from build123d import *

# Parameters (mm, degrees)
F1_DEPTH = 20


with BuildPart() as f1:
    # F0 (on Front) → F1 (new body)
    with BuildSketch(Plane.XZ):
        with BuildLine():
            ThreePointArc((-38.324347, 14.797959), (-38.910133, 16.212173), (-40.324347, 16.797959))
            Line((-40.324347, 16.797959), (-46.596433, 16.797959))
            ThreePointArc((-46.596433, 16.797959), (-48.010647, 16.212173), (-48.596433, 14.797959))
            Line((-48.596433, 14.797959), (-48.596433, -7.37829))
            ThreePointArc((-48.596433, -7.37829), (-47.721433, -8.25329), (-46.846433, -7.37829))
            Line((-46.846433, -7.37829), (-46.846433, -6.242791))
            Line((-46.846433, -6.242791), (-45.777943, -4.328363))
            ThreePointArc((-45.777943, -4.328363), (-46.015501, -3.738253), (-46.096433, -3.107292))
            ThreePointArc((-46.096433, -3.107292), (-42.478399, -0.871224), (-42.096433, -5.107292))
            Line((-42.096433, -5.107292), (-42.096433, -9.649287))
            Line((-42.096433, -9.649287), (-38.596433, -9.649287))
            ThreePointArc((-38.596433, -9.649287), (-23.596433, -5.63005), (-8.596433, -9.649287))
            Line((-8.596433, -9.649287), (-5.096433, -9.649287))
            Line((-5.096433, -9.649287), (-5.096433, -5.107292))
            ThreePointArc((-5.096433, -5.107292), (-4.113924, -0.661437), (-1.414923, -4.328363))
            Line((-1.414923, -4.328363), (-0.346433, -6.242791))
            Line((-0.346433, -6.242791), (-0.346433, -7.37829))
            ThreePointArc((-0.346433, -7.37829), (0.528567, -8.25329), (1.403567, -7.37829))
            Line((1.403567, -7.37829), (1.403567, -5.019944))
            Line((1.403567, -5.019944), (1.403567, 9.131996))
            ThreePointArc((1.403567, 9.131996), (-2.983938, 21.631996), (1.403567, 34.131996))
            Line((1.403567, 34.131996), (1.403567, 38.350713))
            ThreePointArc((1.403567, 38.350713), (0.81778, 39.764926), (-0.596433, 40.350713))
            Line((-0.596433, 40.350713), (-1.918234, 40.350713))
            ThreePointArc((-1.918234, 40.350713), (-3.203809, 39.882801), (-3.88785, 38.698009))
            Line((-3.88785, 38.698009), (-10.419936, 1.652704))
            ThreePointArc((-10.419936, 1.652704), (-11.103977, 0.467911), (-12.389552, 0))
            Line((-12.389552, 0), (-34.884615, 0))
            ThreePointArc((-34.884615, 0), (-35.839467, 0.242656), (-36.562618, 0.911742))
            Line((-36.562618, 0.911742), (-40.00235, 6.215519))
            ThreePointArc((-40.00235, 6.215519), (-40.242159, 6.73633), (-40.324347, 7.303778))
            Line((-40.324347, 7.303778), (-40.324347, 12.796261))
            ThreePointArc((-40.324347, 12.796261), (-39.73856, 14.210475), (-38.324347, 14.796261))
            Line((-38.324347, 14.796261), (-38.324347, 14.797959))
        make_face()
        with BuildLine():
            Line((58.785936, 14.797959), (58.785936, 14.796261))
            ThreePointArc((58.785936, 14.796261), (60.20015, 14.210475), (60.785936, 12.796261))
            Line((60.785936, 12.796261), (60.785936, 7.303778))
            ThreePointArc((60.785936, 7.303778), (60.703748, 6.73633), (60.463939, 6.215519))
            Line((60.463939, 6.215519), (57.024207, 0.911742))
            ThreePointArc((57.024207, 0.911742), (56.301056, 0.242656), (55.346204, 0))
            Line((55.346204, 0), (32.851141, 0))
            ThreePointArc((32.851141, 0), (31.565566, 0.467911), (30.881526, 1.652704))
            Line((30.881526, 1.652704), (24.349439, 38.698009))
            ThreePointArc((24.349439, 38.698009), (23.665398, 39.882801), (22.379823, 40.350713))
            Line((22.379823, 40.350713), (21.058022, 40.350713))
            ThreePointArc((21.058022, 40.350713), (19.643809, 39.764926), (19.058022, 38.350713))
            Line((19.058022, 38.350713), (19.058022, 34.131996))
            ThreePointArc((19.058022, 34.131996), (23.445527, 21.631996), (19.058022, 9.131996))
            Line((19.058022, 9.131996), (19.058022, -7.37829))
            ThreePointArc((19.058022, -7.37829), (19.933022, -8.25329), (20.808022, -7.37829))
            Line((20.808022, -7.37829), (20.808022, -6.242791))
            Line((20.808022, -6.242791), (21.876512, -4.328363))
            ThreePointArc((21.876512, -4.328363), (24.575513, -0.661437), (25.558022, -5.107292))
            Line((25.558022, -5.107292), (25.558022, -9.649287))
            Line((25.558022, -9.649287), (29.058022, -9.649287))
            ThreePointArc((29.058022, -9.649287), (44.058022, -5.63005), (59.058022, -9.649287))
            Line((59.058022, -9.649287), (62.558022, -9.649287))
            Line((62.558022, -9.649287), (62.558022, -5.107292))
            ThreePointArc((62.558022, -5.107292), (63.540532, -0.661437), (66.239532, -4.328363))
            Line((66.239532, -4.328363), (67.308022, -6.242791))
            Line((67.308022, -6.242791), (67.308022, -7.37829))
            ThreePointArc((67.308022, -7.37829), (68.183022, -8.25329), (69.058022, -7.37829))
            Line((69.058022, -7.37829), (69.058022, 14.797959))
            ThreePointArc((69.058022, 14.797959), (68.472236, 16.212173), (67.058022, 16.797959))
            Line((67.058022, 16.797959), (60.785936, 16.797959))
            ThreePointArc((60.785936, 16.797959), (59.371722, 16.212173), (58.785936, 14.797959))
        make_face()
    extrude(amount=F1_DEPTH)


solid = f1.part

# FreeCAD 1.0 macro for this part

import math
import FreeCAD as App
import Part
import Sketcher
from FreeCAD import Vector
Q = App.Units.Quantity

doc = App.newDocument("Part")
params = doc.addObject("Spreadsheet::Sheet", "Params")
for row, (alias, value) in enumerate([
    ("sketch1_radius", "1.999999 mm"),
    ("sketch1_radius2", "20 mm"),
    ("sketch1_radius3", "2.5 mm"),
    ("sketch1_width", "3.5 mm"),
    ("pad1_length", "20 mm"),
], start=1):
    params.set(f"A{row}", alias)
    params.set(f"B{row}", "=" + value)
    params.setAlias(f"B{row}", alias)

body = doc.addObject("PartDesign::Body", "Body")
body.AllowCompound = True

# Sketch on XZ plane
sketch1 = body.newObject("Sketcher::SketchObject", "Sketch")
sketch1.AttachmentSupport = (doc.getObject("XZ_Plane"), [""])
sketch1.MapMode = "FlatFace"
sketch1.addGeometry(Part.ArcOfCircle(Part.Circle(Vector(-40.3243, 14.798, 0), Vector(0, 0, 1), 2), math.radians(0), math.radians(90)), False)
sketch1.addGeometry(Part.LineSegment(Vector(-40.3243, 16.798, 0), Vector(-46.5964, 16.798, 0)), False)
sketch1.addGeometry(Part.ArcOfCircle(Part.Circle(Vector(-46.5964, 14.798, 0), Vector(0, 0, 1), 2), math.radians(90), math.radians(180)), False)
sketch1.addGeometry(Part.LineSegment(Vector(-48.5964, 14.798, 0), Vector(-48.5964, -7.3783, 0)), False)
sketch1.addGeometry(Part.ArcOfCircle(Part.Circle(Vector(-47.7214, -7.3783, 0), Vector(0, 0, 1), 0.875), math.radians(180), math.radians(360)), False)
sketch1.addGeometry(Part.LineSegment(Vector(-46.8464, -7.3783, 0), Vector(-46.8464, -6.2428, 0)), False)
sketch1.addGeometry(Part.LineSegment(Vector(-46.8464, -6.2428, 0), Vector(-45.7779, -4.3284, 0)), False)
sketch1.addGeometry(Part.ArcOfCircle(Part.Circle(Vector(-43.5964, -3.1073, 0), Vector(0, 0, 1), 2.5), math.radians(180), math.radians(209)), False)
sketch1.addGeometry(Part.ArcOfCircle(Part.Circle(Vector(-43.5964, -3.1073, 0), Vector(0, 0, 1), 2.5), math.radians(-53), math.radians(180)), False)
sketch1.addGeometry(Part.LineSegment(Vector(-42.0964, -5.1073, 0), Vector(-42.0964, -9.6493, 0)), False)
sketch1.addGeometry(Part.LineSegment(Vector(-42.0964, -9.6493, 0), Vector(-38.5964, -9.6493, 0)), False)
sketch1.addGeometry(Part.ArcOfCircle(Part.Circle(Vector(-23.5964, -35.6301, 0), Vector(0, 0, 1), 30), math.radians(60), math.radians(120)), False)
sketch1.addGeometry(Part.LineSegment(Vector(-8.5964, -9.6493, 0), Vector(-5.0964, -9.6493, 0)), False)
sketch1.addGeometry(Part.LineSegment(Vector(-5.0964, -9.6493, 0), Vector(-5.0964, -5.1073, 0)), False)
sketch1.addGeometry(Part.ArcOfCircle(Part.Circle(Vector(-3.5964, -3.1073, 0), Vector(0, 0, 1), 2.5), math.radians(-29), math.radians(233)), False)
sketch1.addGeometry(Part.LineSegment(Vector(-1.4149, -4.3284, 0), Vector(-0.3464, -6.2428, 0)), False)
sketch1.addGeometry(Part.LineSegment(Vector(-0.3464, -6.2428, 0), Vector(-0.3464, -7.3783, 0)), False)
sketch1.addGeometry(Part.ArcOfCircle(Part.Circle(Vector(0.5286, -7.3783, 0), Vector(0, 0, 1), 0.875), math.radians(180), math.radians(360)), False)
sketch1.addGeometry(Part.LineSegment(Vector(1.4036, -7.3783, 0), Vector(1.4036, 9.132, 0)), False)
sketch1.addGeometry(Part.ArcOfCircle(Part.Circle(Vector(17.0161, 21.632, 0), Vector(0, 0, 1), 20), math.radians(141), math.radians(219)), False)
sketch1.addGeometry(Part.LineSegment(Vector(1.4036, 34.132, 0), Vector(1.4036, 38.3507, 0)), False)
sketch1.addGeometry(Part.ArcOfCircle(Part.Circle(Vector(-0.5964, 38.3507, 0), Vector(0, 0, 1), 2), math.radians(0), math.radians(90)), False)
sketch1.addGeometry(Part.LineSegment(Vector(-0.5964, 40.3507, 0), Vector(-1.9182, 40.3507, 0)), False)
sketch1.addGeometry(Part.ArcOfCircle(Part.Circle(Vector(-1.9182, 38.3507, 0), Vector(0, 0, 1), 2), math.radians(90), math.radians(170)), False)
sketch1.addGeometry(Part.LineSegment(Vector(-3.8878, 38.698, 0), Vector(-10.4199, 1.6527, 0)), False)
sketch1.addGeometry(Part.ArcOfCircle(Part.Circle(Vector(-12.3896, 2, 0), Vector(0, 0, 1), 2), math.radians(-90), math.radians(-10)), False)
sketch1.addGeometry(Part.LineSegment(Vector(-12.3896, 0, 0), Vector(-34.8846, 0, 0)), False)
sketch1.addGeometry(Part.ArcOfCircle(Part.Circle(Vector(-34.8846, 2, 0), Vector(0, 0, 1), 2), math.radians(-147), math.radians(-90)), False)
sketch1.addGeometry(Part.LineSegment(Vector(-36.5626, 0.9117, 0), Vector(-40.0023, 6.2155, 0)), False)
sketch1.addGeometry(Part.ArcOfCircle(Part.Circle(Vector(-38.3243, 7.3038, 0), Vector(0, 0, 1), 2), math.radians(-180), math.radians(-147)), False)
sketch1.addGeometry(Part.LineSegment(Vector(-40.3243, 7.3038, 0), Vector(-40.3243, 12.7963, 0)), False)
sketch1.addGeometry(Part.ArcOfCircle(Part.Circle(Vector(-38.3243, 12.7963, 0), Vector(0, 0, 1), 2), math.radians(90), math.radians(180)), False)
sketch1.addGeometry(Part.LineSegment(Vector(-38.3243, 14.7963, 0), Vector(-38.3243, 14.798, 0)), False)
sketch1.addGeometry(Part.LineSegment(Vector(58.7859, 14.798, 0), Vector(58.7859, 14.7963, 0)), False)
sketch1.addGeometry(Part.ArcOfCircle(Part.Circle(Vector(58.7859, 12.7963, 0), Vector(0, 0, 1), 2), math.radians(0), math.radians(90)), False)
sketch1.addGeometry(Part.LineSegment(Vector(60.7859, 12.7963, 0), Vector(60.7859, 7.3038, 0)), False)
sketch1.addGeometry(Part.ArcOfCircle(Part.Circle(Vector(58.7859, 7.3038, 0), Vector(0, 0, 1), 2), math.radians(-33), math.radians(0)), False)
sketch1.addGeometry(Part.LineSegment(Vector(60.4639, 6.2155, 0), Vector(57.0242, 0.9117, 0)), False)
sketch1.addGeometry(Part.ArcOfCircle(Part.Circle(Vector(55.3462, 2, 0), Vector(0, 0, 1), 2), math.radians(-90), math.radians(-33)), False)
sketch1.addGeometry(Part.LineSegment(Vector(55.3462, 0, 0), Vector(32.8511, 0, 0)), False)
sketch1.addGeometry(Part.ArcOfCircle(Part.Circle(Vector(32.8511, 2, 0), Vector(0, 0, 1), 2), math.radians(-170), math.radians(-90)), False)
sketch1.addGeometry(Part.LineSegment(Vector(30.8815, 1.6527, 0), Vector(24.3494, 38.698, 0)), False)
sketch1.addGeometry(Part.ArcOfCircle(Part.Circle(Vector(22.3798, 38.3507, 0), Vector(0, 0, 1), 2), math.radians(10), math.radians(90)), False)
sketch1.addGeometry(Part.LineSegment(Vector(22.3798, 40.3507, 0), Vector(21.058, 40.3507, 0)), False)
sketch1.addGeometry(Part.ArcOfCircle(Part.Circle(Vector(21.058, 38.3507, 0), Vector(0, 0, 1), 2), math.radians(90), math.radians(180)), False)
sketch1.addGeometry(Part.LineSegment(Vector(19.058, 38.3507, 0), Vector(19.058, 34.132, 0)), False)
sketch1.addGeometry(Part.ArcOfCircle(Part.Circle(Vector(3.4455, 21.632, 0), Vector(0, 0, 1), 20), math.radians(-39), math.radians(39)), False)
sketch1.addGeometry(Part.LineSegment(Vector(19.058, 9.132, 0), Vector(19.058, -7.3783, 0)), False)
sketch1.addGeometry(Part.ArcOfCircle(Part.Circle(Vector(19.933, -7.3783, 0), Vector(0, 0, 1), 0.875), math.radians(180), math.radians(360)), False)
sketch1.addGeometry(Part.LineSegment(Vector(20.808, -7.3783, 0), Vector(20.808, -6.2428, 0)), False)
sketch1.addGeometry(Part.LineSegment(Vector(20.808, -6.2428, 0), Vector(21.8765, -4.3284, 0)), False)
sketch1.addGeometry(Part.ArcOfCircle(Part.Circle(Vector(24.058, -3.1073, 0), Vector(0, 0, 1), 2.5), math.radians(-53), math.radians(209)), False)
sketch1.addGeometry(Part.LineSegment(Vector(25.558, -5.1073, 0), Vector(25.558, -9.6493, 0)), False)
sketch1.addGeometry(Part.LineSegment(Vector(25.558, -9.6493, 0), Vector(29.058, -9.6493, 0)), False)
sketch1.addGeometry(Part.ArcOfCircle(Part.Circle(Vector(44.058, -35.6301, 0), Vector(0, 0, 1), 30), math.radians(60), math.radians(120)), False)
sketch1.addGeometry(Part.LineSegment(Vector(59.058, -9.6493, 0), Vector(62.558, -9.6493, 0)), False)
sketch1.addGeometry(Part.LineSegment(Vector(62.558, -9.6493, 0), Vector(62.558, -5.1073, 0)), False)
sketch1.addGeometry(Part.ArcOfCircle(Part.Circle(Vector(64.058, -3.1073, 0), Vector(0, 0, 1), 2.5), math.radians(-29), math.radians(233)), False)
sketch1.addGeometry(Part.LineSegment(Vector(66.2395, -4.3284, 0), Vector(67.308, -6.2428, 0)), False)
sketch1.addGeometry(Part.LineSegment(Vector(67.308, -6.2428, 0), Vector(67.308, -7.3783, 0)), False)
sketch1.addGeometry(Part.ArcOfCircle(Part.Circle(Vector(68.183, -7.3783, 0), Vector(0, 0, 1), 0.875), math.radians(180), math.radians(360)), False)
sketch1.addGeometry(Part.LineSegment(Vector(69.058, -7.3783, 0), Vector(69.058, 14.798, 0)), False)
sketch1.addGeometry(Part.ArcOfCircle(Part.Circle(Vector(67.058, 14.798, 0), Vector(0, 0, 1), 2), math.radians(0), math.radians(90)), False)
sketch1.addGeometry(Part.LineSegment(Vector(67.058, 16.798, 0), Vector(60.7859, 16.798, 0)), False)
sketch1.addGeometry(Part.ArcOfCircle(Part.Circle(Vector(60.7859, 14.798, 0), Vector(0, 0, 1), 2), math.radians(90), math.radians(180)), False)
sketch1.addConstraint(Sketcher.Constraint("Tangent", 0, 2, 1, 1))
sketch1.addConstraint(Sketcher.Constraint("Tangent", 1, 2, 2, 1))
sketch1.addConstraint(Sketcher.Constraint("Tangent", 2, 2, 3, 1))
sketch1.addConstraint(Sketcher.Constraint("Tangent", 3, 2, 4, 1))
sketch1.addConstraint(Sketcher.Constraint("Tangent", 4, 2, 5, 1))
sketch1.addConstraint(Sketcher.Constraint("Coincident", 5, 2, 6, 1))
sketch1.addConstraint(Sketcher.Constraint("Coincident", 6, 2, 7, 2))
sketch1.addConstraint(Sketcher.Constraint("Tangent", 7, 1, 8, 2))
sketch1.addConstraint(Sketcher.Constraint("Coincident", 8, 1, 9, 1))
sketch1.addConstraint(Sketcher.Constraint("Coincident", 9, 2, 10, 1))
sketch1.addConstraint(Sketcher.Constraint("Coincident", 10, 2, 11, 2))
sketch1.addConstraint(Sketcher.Constraint("Coincident", 11, 1, 12, 1))
sketch1.addConstraint(Sketcher.Constraint("Coincident", 12, 2, 13, 1))
sketch1.addConstraint(Sketcher.Constraint("Coincident", 13, 2, 14, 2))
sketch1.addConstraint(Sketcher.Constraint("Coincident", 14, 1, 15, 1))
sketch1.addConstraint(Sketcher.Constraint("Coincident", 15, 2, 16, 1))
sketch1.addConstraint(Sketcher.Constraint("Tangent", 16, 2, 17, 1))
sketch1.addConstraint(Sketcher.Constraint("Tangent", 17, 2, 18, 1))
sketch1.addConstraint(Sketcher.Constraint("Coincident", 18, 2, 19, 2))
sketch1.addConstraint(Sketcher.Constraint("Coincident", 19, 1, 20, 1))
sketch1.addConstraint(Sketcher.Constraint("Tangent", 20, 2, 21, 1))
sketch1.addConstraint(Sketcher.Constraint("Tangent", 21, 2, 22, 1))
sketch1.addConstraint(Sketcher.Constraint("Tangent", 22, 2, 23, 1))
sketch1.addConstraint(Sketcher.Constraint("Tangent", 23, 2, 24, 1))
sketch1.addConstraint(Sketcher.Constraint("Tangent", 24, 2, 25, 2))
sketch1.addConstraint(Sketcher.Constraint("Tangent", 25, 1, 26, 1))
sketch1.addConstraint(Sketcher.Constraint("Tangent", 26, 2, 27, 2))
sketch1.addConstraint(Sketcher.Constraint("Tangent", 27, 1, 28, 1))
sketch1.addConstraint(Sketcher.Constraint("Tangent", 28, 2, 29, 2))
sketch1.addConstraint(Sketcher.Constraint("Tangent", 29, 1, 30, 1))
sketch1.addConstraint(Sketcher.Constraint("Tangent", 30, 2, 31, 2))
sketch1.addConstraint(Sketcher.Constraint("Coincident", 31, 1, 32, 1))
sketch1.addConstraint(Sketcher.Constraint("Tangent", 32, 2, 0, 1))
sketch1.addConstraint(Sketcher.Constraint("Coincident", 33, 2, 34, 2))
sketch1.addConstraint(Sketcher.Constraint("Tangent", 34, 1, 35, 1))
sketch1.addConstraint(Sketcher.Constraint("Tangent", 35, 2, 36, 2))
sketch1.addConstraint(Sketcher.Constraint("Tangent", 36, 1, 37, 1))
sketch1.addConstraint(Sketcher.Constraint("Tangent", 37, 2, 38, 2))
sketch1.addConstraint(Sketcher.Constraint("Tangent", 38, 1, 39, 1))
sketch1.addConstraint(Sketcher.Constraint("Tangent", 39, 2, 40, 2))
sketch1.addConstraint(Sketcher.Constraint("Tangent", 40, 1, 41, 1))
sketch1.addConstraint(Sketcher.Constraint("Tangent", 41, 2, 42, 1))
sketch1.addConstraint(Sketcher.Constraint("Tangent", 42, 2, 43, 1))
sketch1.addConstraint(Sketcher.Constraint("Tangent", 43, 2, 44, 1))
sketch1.addConstraint(Sketcher.Constraint("Tangent", 44, 2, 45, 1))
sketch1.addConstraint(Sketcher.Constraint("Coincident", 45, 2, 46, 2))
sketch1.addConstraint(Sketcher.Constraint("Coincident", 46, 1, 47, 1))
sketch1.addConstraint(Sketcher.Constraint("Tangent", 47, 2, 48, 1))
sketch1.addConstraint(Sketcher.Constraint("Tangent", 48, 2, 49, 1))
sketch1.addConstraint(Sketcher.Constraint("Coincident", 49, 2, 50, 1))
sketch1.addConstraint(Sketcher.Constraint("Coincident", 50, 2, 51, 2))
sketch1.addConstraint(Sketcher.Constraint("Coincident", 51, 1, 52, 1))
sketch1.addConstraint(Sketcher.Constraint("Coincident", 52, 2, 53, 1))
sketch1.addConstraint(Sketcher.Constraint("Coincident", 53, 2, 54, 2))
sketch1.addConstraint(Sketcher.Constraint("Coincident", 54, 1, 55, 1))
sketch1.addConstraint(Sketcher.Constraint("Coincident", 55, 2, 56, 1))
sketch1.addConstraint(Sketcher.Constraint("Coincident", 56, 2, 57, 2))
sketch1.addConstraint(Sketcher.Constraint("Coincident", 57, 1, 58, 1))
sketch1.addConstraint(Sketcher.Constraint("Coincident", 58, 2, 59, 1))
sketch1.addConstraint(Sketcher.Constraint("Tangent", 59, 2, 60, 1))
sketch1.addConstraint(Sketcher.Constraint("Tangent", 60, 2, 61, 1))
sketch1.addConstraint(Sketcher.Constraint("Tangent", 61, 2, 62, 1))
sketch1.addConstraint(Sketcher.Constraint("Tangent", 62, 2, 63, 1))
sketch1.addConstraint(Sketcher.Constraint("Tangent", 63, 2, 64, 1))
sketch1.addConstraint(Sketcher.Constraint("Tangent", 64, 2, 33, 1))
sketch1.addConstraint(Sketcher.Constraint("Horizontal", 1))
sketch1.addConstraint(Sketcher.Constraint("Vertical", 3))
sketch1.addConstraint(Sketcher.Constraint("Vertical", 5))
sketch1.addConstraint(Sketcher.Constraint("Vertical", 9))
sketch1.addConstraint(Sketcher.Constraint("Horizontal", 10))
sketch1.addConstraint(Sketcher.Constraint("Horizontal", 12))
sketch1.addConstraint(Sketcher.Constraint("Vertical", 13))
sketch1.addConstraint(Sketcher.Constraint("Vertical", 16))
sketch1.addConstraint(Sketcher.Constraint("Vertical", 18))
sketch1.addConstraint(Sketcher.Constraint("Vertical", 20))
sketch1.addConstraint(Sketcher.Constraint("Horizontal", 22))
sketch1.addConstraint(Sketcher.Constraint("Horizontal", 26))
sketch1.addConstraint(Sketcher.Constraint("Vertical", 30))
sketch1.addConstraint(Sketcher.Constraint("Vertical", 35))
sketch1.addConstraint(Sketcher.Constraint("Horizontal", 39))
sketch1.addConstraint(Sketcher.Constraint("Horizontal", 43))
sketch1.addConstraint(Sketcher.Constraint("Vertical", 45))
sketch1.addConstraint(Sketcher.Constraint("Vertical", 47))
sketch1.addConstraint(Sketcher.Constraint("Vertical", 49))
sketch1.addConstraint(Sketcher.Constraint("Vertical", 52))
sketch1.addConstraint(Sketcher.Constraint("Horizontal", 53))
sketch1.addConstraint(Sketcher.Constraint("Horizontal", 55))
sketch1.addConstraint(Sketcher.Constraint("Vertical", 56))
sketch1.addConstraint(Sketcher.Constraint("Vertical", 59))
sketch1.addConstraint(Sketcher.Constraint("Vertical", 61))
sketch1.addConstraint(Sketcher.Constraint("Horizontal", 63))
sketch1.addConstraint(Sketcher.Constraint("Equal", 0, 2))
sketch1.addConstraint(Sketcher.Constraint("Equal", 8, 14))
sketch1.addConstraint(Sketcher.Constraint("Equal", 4, 17))
sketch1.addConstraint(Sketcher.Constraint("Equal", 21, 23))
sketch1.addConstraint(Sketcher.Constraint("Equal", 21, 25))
sketch1.addConstraint(Sketcher.Constraint("Equal", 2, 27))
sketch1.addConstraint(Sketcher.Constraint("Equal", 23, 29))
sketch1.addConstraint(Sketcher.Constraint("Equal", 27, 31))
sketch1.addConstraint(Sketcher.Constraint("Equal", 31, 34))
sketch1.addConstraint(Sketcher.Constraint("Equal", 29, 36))
sketch1.addConstraint(Sketcher.Constraint("Equal", 34, 38))
sketch1.addConstraint(Sketcher.Constraint("Equal", 38, 40))
sketch1.addConstraint(Sketcher.Constraint("Equal", 36, 42))
sketch1.addConstraint(Sketcher.Constraint("Equal", 42, 44))
sketch1.addConstraint(Sketcher.Constraint("Equal", 19, 46))
sketch1.addConstraint(Sketcher.Constraint("Equal", 17, 48))
sketch1.addConstraint(Sketcher.Constraint("Equal", 14, 51))
sketch1.addConstraint(Sketcher.Constraint("Equal", 11, 54))
sketch1.addConstraint(Sketcher.Constraint("Equal", 51, 57))
sketch1.addConstraint(Sketcher.Constraint("Equal", 48, 60))
sketch1.addConstraint(Sketcher.Constraint("Equal", 40, 62))
sketch1.addConstraint(Sketcher.Constraint("Equal", 62, 64))
sketch1.addConstraint(Sketcher.Constraint("PointOnObject", 25, 1, -1))
sketch1.addConstraint(Sketcher.Constraint("PointOnObject", 38, 1, -1))
sketch1.addConstraint(Sketcher.Constraint("Parallel", 6, 50))
sketch1.addConstraint(Sketcher.Constraint("Parallel", 15, 58))
sketch1.addConstraint(Sketcher.Constraint("Horizontal", 8, 3, 14, 3))
sketch1.addConstraint(Sketcher.Constraint("Horizontal", 4, 3, 17, 3))
sketch1.addConstraint(Sketcher.Constraint("Horizontal", 31, 3, 34, 3))
sketch1.addConstraint(Sketcher.Constraint("Horizontal", 29, 3, 36, 3))
sketch1.addConstraint(Sketcher.Constraint("Horizontal", 23, 3, 42, 3))
sketch1.addConstraint(Sketcher.Constraint("Horizontal", 19, 3, 46, 3))
sketch1.addConstraint(Sketcher.Constraint("Horizontal", 17, 3, 48, 3))
sketch1.addConstraint(Sketcher.Constraint("Horizontal", 14, 3, 51, 3))
sketch1.addConstraint(Sketcher.Constraint("Horizontal", 11, 3, 54, 3))
sketch1.addConstraint(Sketcher.Constraint("Horizontal", 51, 3, 57, 3))
sketch1.addConstraint(Sketcher.Constraint("Horizontal", 48, 3, 60, 3))
sketch1.addConstraint(Sketcher.Constraint("Horizontal", 2, 3, 62, 3))
sketch1.addConstraint(Sketcher.Constraint("Horizontal", 57, 3, 7, 1))
sketch1.addConstraint(Sketcher.Constraint("Horizontal", 10, 2, 11, 1))
sketch1.addConstraint(Sketcher.Constraint("Horizontal", 8, 1, 13, 2))
sketch1.addConstraint(Sketcher.Constraint("Horizontal", 6, 2, 14, 1))
sketch1.addConstraint(Sketcher.Constraint("Horizontal", 5, 2, 15, 2))
sketch1.addConstraint(Sketcher.Constraint("Horizontal", 2, 2, 32, 2))
sketch1.addConstraint(Sketcher.Constraint("Horizontal", 28, 2, 36, 1))
sketch1.addConstraint(Sketcher.Constraint("Horizontal", 24, 2, 40, 1))
sketch1.addConstraint(Sketcher.Constraint("Horizontal", 23, 2, 41, 2))
sketch1.addConstraint(Sketcher.Constraint("Horizontal", 19, 1, 45, 2))
sketch1.addConstraint(Sketcher.Constraint("Horizontal", 18, 2, 46, 1))
sketch1.addConstraint(Sketcher.Constraint("Horizontal", 15, 2, 49, 2))
sketch1.addConstraint(Sketcher.Constraint("Horizontal", 14, 1, 50, 2))
sketch1.addConstraint(Sketcher.Constraint("Horizontal", 13, 2, 51, 1))
sketch1.addConstraint(Sketcher.Constraint("Horizontal", 12, 2, 52, 2))
sketch1.addConstraint(Sketcher.Constraint("Horizontal", 53, 2, 54, 1))
sketch1.addConstraint(Sketcher.Constraint("Horizontal", 51, 1, 56, 2))
sketch1.addConstraint(Sketcher.Constraint("Horizontal", 50, 2, 57, 1))
sketch1.addConstraint(Sketcher.Constraint("Horizontal", 49, 2, 58, 2))
sketch1.addConstraint(Sketcher.Constraint("Horizontal", 61, 2, 64, 2))
sketch1.addConstraint(Sketcher.Constraint("Vertical", 18, 2, 19, 1))
sketch1.addConstraint(Sketcher.Constraint("Vertical", 0, 2, 29, 1))
sketch1.addConstraint(Sketcher.Constraint("Vertical", 34, 3, 33, 2))
sketch1.addConstraint(Sketcher.Constraint("Equal", 10, 12))
sketch1.addConstraint(Sketcher.Constraint("Equal", 26, 39))
sketch1.addConstraint(Sketcher.Constraint("Equal", 22, 43))
sketch1.addConstraint(Sketcher.Constraint("Equal", 12, 53))
sketch1.addConstraint(Sketcher.Constraint("Equal", 53, 55))
sketch1.addConstraint(Sketcher.Constraint("Equal", 1, 63))
sketch1.addConstraint(Sketcher.Constraint("Equal", 6, 15))
sketch1.addConstraint(Sketcher.Constraint("Radius", 0, Q("1.999999 mm")))
sketch1.addConstraint(Sketcher.Constraint("Radius", 19, Q("20 mm")))
sketch1.addConstraint(Sketcher.Constraint("Radius", 8, Q("2.5 mm")))
sketch1.addConstraint(Sketcher.Constraint("Angle", 24, Q("-99.999999 deg")))
sketch1.addConstraint(Sketcher.Constraint("DistanceX", 10, 1, 10, 2, Q("3.5 mm")))
sketch1.addConstraint(Sketcher.Constraint("Radius", 4, Q("0.875 mm")))
sketch1.addConstraint(Sketcher.Constraint("DistanceX", 22, 2, 22, 1, Q("1.321801 mm")))
sketch1.addConstraint(Sketcher.Constraint("DistanceY", 5, 1, 5, 2, Q("1.135499 mm")))
sketch1.addConstraint(Sketcher.Constraint("DistanceY", 32, 1, 32, 2, Q("0.001698 mm")))
sketch1.addConstraint(Sketcher.Constraint("Radius", 11, Q("30.000006 mm")))
sketch1.addConstraint(Sketcher.Constraint("DistanceY", 3, 2, 3, 1, Q("22.176249 mm")))
sketch1.addConstraint(Sketcher.Constraint("Distance", 6, Q("2.19242 mm")))
sketch1.addConstraint(Sketcher.Constraint("Distance", 24, Q("37.616788 mm")))
sketch1.addConstraint(Sketcher.Constraint("DistanceX", 1, 2, 1, 1, Q("6.272086 mm")))
sketch1.addConstraint(Sketcher.Constraint("DistanceX", 26, 2, 26, 1, Q("22.495063 mm")))
sketch1.addConstraint(Sketcher.Constraint("DistanceY", 9, 2, 9, 1, Q("4.541995 mm")))
sketch1.addConstraint(Sketcher.Constraint("DistanceY", 18, 1, 18, 2, Q("16.510286 mm")))
sketch1.addConstraint(Sketcher.Constraint("DistanceY", 20, 1, 20, 2, Q("4.218717 mm")))
sketch1.addConstraint(Sketcher.Constraint("DistanceY", 30, 1, 30, 2, Q("5.492483 mm")))
sketch1.addConstraint(Sketcher.Constraint("DistanceY", -1, 1, 0, 3, Q("14.79796 mm")))
sketch1.addConstraint(Sketcher.Constraint("DistanceY", 8, 3, -1, 1, Q("3.107292 mm")))
sketch1.addConstraint(Sketcher.Constraint("DistanceX", 23, 3, -1, 1, Q("1.918231 mm")))
sketch1.addConstraint(Sketcher.Constraint("DistanceX", -1, 1, 36, 3, Q("58.785931 mm")))
sketch1.addConstraint(Sketcher.Constraint("DistanceX", -1, 1, 40, 3, Q("32.851141 mm")))
sketch1.addConstraint(Sketcher.Constraint("DistanceX", -1, 1, 57, 3, Q("64.058022 mm")))
sketch1.addConstraint(Sketcher.Constraint("DistanceX", -1, 1, 51, 1, Q("25.558022 mm")))
sketch1.setExpression("Constraints[159]", "Params.sketch1_radius")
sketch1.setExpression("Constraints[160]", "Params.sketch1_radius2")
sketch1.setExpression("Constraints[161]", "Params.sketch1_radius3")
sketch1.setExpression("Constraints[163]", "Params.sketch1_width")
pad1 = body.newObject("PartDesign::Pad", "Pad")
pad1.Profile = sketch1
pad1.setExpression("Length", "Params.pad1_length")

doc.recompute()
